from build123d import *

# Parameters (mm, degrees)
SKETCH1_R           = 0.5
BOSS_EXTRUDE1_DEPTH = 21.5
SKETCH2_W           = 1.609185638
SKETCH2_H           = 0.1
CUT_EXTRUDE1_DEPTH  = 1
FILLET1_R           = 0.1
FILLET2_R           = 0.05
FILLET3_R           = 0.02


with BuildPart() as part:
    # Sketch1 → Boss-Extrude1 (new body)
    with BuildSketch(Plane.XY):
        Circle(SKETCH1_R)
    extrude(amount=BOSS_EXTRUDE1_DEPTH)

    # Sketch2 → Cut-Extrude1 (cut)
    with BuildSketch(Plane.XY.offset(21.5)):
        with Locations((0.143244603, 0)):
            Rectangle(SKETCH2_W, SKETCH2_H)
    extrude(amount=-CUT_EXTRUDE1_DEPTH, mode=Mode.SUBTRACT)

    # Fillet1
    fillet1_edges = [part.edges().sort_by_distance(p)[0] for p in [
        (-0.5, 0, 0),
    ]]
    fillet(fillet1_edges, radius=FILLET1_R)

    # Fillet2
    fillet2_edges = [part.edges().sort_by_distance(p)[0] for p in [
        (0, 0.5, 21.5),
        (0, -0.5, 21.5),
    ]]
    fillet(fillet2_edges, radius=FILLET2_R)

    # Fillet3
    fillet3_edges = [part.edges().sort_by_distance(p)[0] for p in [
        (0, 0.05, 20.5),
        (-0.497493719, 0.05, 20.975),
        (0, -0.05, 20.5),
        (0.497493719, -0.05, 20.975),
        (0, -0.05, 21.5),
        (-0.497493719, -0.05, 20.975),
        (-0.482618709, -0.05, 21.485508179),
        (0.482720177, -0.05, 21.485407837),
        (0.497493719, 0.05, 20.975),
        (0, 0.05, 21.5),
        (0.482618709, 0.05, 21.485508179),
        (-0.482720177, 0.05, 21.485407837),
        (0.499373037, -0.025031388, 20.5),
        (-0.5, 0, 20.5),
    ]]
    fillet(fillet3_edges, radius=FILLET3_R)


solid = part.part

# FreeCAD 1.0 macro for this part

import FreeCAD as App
import Part
import Sketcher
from FreeCAD import Vector


def edges_at(feature, points):
    """Names of the edges that pass closest to the given points."""
    edges = feature.Shape.Edges
    near = lambda p: min(range(len(edges)), key=lambda i: edges[i].distToShape(Part.Vertex(*p))[0])
    return sorted({f"Edge{near(p) + 1}" for p in points})


def add_polygon(sketch, points):
    """Adds a closed chain of lines whose ends are joined by coincident constraints."""
    first, n = sketch.GeometryCount, len(points)
    for a, b in zip(points, points[1:] + points[:1]):
        sketch.addGeometry(Part.LineSegment(App.Vector(*a, 0), App.Vector(*b, 0)), False)
    for i in range(n):
        sketch.addConstraint(Sketcher.Constraint("Coincident", first + i, 2, first + (i + 1) % n, 1))

doc = App.newDocument("Part")
body = doc.addObject("PartDesign::Body", "Body")

# Sketch on XY plane
sketch1 = body.newObject("Sketcher::SketchObject", "Sketch")
sketch1.AttachmentSupport = (doc.getObject("XY_Plane"), [""])
sketch1.MapMode = "FlatFace"
sketch1.addGeometry(Part.Circle(Vector(0, 0, 0), Vector(0, 0, 1), 0.5), False)
sketch1.addConstraint(Sketcher.Constraint("Coincident", 0, 3, -1, 1))
sketch1.addConstraint(Sketcher.Constraint("Diameter", 0, 1.0))
pad1 = body.newObject("PartDesign::Pad", "Pad")
pad1.Profile = sketch1
pad1.Length = 21.5

# Sketch on XY plane
sketch2 = body.newObject("Sketcher::SketchObject", "Sketch001")
sketch2.AttachmentSupport = (doc.getObject("XY_Plane"), [""])
sketch2.MapMode = "FlatFace"
sketch2.AttachmentOffset = App.Placement(Vector(0, 0, 21.5), App.Rotation())
add_polygon(sketch2, [(-0.66, 0.05), (-0.66, -0.05), (0.95, -0.05), (0.95, 0.05)])  # lines 0-3
sketch2.addConstraint(Sketcher.Constraint("Vertical", 0))
sketch2.addConstraint(Sketcher.Constraint("Horizontal", 1))
sketch2.addConstraint(Sketcher.Constraint("Vertical", 2))
sketch2.addConstraint(Sketcher.Constraint("Horizontal", 3))
sketch2.addConstraint(Sketcher.Constraint("DistanceY", 0, 2, 0, 1, 0.1))
sketch2.addConstraint(Sketcher.Constraint("DistanceY", 0, 2, -1, 1, 0.05))
sketch2.addConstraint(Sketcher.Constraint("DistanceX", 1, 1, 1, 2, 1.609186))
sketch2.addConstraint(Sketcher.Constraint("DistanceX", 0, 2, -1, 1, 0.661348))
pocket1 = body.newObject("PartDesign::Pocket", "Pocket")
pocket1.Profile = sketch2
pocket1.Length = 1
doc.recompute()

fillet = body.newObject("PartDesign::Fillet", "Fillet")
fillet.Base = (pocket1, edges_at(pocket1, [(-0.5, 0, 0)]))
fillet.Radius = 0.1
doc.recompute()

fillet2 = body.newObject("PartDesign::Fillet", "Fillet001")
fillet2.Base = (fillet, edges_at(fillet, [(0, 0.5, 21.5), (0, -0.5, 21.5)]))
fillet2.Radius = 0.05
doc.recompute()

fillet3 = body.newObject("PartDesign::Fillet", "Fillet002")
fillet3.Base = (fillet2, edges_at(fillet2, [
    (0, 0.05, 20.5),
    (-0.497, 0.05, 20.975),
    (0, -0.05, 20.5),
    (0.497, -0.05, 20.975),
    (0, -0.05, 21.5),
    (-0.497, -0.05, 20.975),
    (-0.483, -0.05, 21.486),
    (0.483, -0.05, 21.485),
    (0.497, 0.05, 20.975),
    (0, 0.05, 21.5),
    (0.483, 0.05, 21.486),
    (-0.483, 0.05, 21.485),
    (0.499, -0.025, 20.5),
    (-0.5, 0, 20.5),
]))
fillet3.Radius = 0.02

doc.recompute()
